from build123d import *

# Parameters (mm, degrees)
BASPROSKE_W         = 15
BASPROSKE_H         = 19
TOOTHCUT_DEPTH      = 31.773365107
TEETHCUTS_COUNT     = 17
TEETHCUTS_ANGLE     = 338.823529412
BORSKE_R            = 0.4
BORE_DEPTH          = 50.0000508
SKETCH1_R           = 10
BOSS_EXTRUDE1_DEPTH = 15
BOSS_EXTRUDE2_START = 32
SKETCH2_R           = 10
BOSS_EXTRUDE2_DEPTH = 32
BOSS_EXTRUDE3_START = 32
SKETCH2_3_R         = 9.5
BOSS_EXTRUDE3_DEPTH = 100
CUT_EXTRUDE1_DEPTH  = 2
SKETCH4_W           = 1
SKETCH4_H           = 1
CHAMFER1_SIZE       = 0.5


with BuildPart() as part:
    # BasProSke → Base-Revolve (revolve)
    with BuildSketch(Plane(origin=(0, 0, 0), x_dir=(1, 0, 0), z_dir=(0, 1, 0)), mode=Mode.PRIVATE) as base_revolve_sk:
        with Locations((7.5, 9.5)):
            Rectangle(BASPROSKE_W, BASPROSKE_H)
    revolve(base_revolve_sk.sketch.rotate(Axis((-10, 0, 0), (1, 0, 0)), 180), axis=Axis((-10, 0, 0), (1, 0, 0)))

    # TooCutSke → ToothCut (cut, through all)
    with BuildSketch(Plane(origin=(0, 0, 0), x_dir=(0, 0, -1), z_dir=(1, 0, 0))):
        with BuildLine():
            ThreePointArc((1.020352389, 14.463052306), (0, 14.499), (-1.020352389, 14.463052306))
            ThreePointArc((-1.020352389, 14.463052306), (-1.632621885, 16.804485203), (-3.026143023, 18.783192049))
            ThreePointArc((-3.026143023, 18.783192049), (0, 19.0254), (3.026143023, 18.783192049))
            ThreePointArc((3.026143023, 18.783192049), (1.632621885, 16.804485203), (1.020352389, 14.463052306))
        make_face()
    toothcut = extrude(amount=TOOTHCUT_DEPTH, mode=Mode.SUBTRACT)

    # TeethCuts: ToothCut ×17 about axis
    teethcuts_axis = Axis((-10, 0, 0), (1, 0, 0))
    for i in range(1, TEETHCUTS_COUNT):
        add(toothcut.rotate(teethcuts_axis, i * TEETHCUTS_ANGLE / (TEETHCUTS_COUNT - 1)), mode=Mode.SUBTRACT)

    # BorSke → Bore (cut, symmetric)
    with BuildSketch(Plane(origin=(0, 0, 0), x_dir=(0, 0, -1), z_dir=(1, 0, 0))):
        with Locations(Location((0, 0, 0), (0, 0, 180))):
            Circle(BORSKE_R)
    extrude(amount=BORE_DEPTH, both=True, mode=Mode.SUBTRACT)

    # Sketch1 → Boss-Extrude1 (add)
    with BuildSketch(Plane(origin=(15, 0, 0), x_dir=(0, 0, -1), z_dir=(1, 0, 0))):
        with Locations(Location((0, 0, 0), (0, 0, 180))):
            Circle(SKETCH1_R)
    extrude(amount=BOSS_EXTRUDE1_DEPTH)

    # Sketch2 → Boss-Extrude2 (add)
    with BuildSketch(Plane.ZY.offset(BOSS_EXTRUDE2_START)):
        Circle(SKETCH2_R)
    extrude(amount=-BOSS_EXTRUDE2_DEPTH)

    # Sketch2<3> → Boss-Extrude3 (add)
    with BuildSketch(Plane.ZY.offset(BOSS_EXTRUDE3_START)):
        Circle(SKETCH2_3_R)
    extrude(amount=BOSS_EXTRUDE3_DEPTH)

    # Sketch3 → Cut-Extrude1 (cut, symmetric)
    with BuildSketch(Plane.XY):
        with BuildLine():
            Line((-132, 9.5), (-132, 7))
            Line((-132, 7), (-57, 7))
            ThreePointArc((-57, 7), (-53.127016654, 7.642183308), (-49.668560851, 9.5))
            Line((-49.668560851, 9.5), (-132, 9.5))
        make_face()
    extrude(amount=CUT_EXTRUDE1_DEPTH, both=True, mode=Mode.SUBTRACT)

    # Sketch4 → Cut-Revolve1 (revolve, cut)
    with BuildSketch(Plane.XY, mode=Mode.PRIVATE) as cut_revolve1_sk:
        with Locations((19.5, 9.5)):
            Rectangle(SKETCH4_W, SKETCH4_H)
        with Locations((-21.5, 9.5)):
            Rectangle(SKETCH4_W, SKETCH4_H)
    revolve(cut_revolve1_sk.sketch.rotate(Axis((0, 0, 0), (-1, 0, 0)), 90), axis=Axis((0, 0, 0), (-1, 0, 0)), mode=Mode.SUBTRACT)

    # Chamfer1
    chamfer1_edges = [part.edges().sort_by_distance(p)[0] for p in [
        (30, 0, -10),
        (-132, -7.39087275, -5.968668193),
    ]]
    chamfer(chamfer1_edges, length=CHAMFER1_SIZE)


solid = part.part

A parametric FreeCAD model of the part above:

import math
import FreeCAD as App
import Part
import Sketcher

V = App.Vector
Q = App.Units.Quantity


def edges_at(feature, points):
    """Names of the edges that pass closest to the given points."""
    edges = feature.Shape.Edges
    near = lambda p: min(range(len(edges)), key=lambda i: edges[i].distToShape(Part.Vertex(*p))[0])
    return sorted({f"Edge{near(p) + 1}" for p in points})

doc = App.newDocument("Part")
params = doc.addObject("Spreadsheet::Sheet", "Params")
for row, (alias, value) in enumerate([
    ("sketch1_width", "15 mm"),
    ("sketch1_height", "19 mm"),
    ("revolution_angle", "360 deg"),
    ("sketch2_radius", "6.8 mm"),
    ("sketch3_diameter", "0.8 mm"),
    ("pocket2_length", "100.000102 mm"),
    ("sketch4_diameter", "20 mm"),
    ("pad1_length", "15 mm"),
    ("sketch5_diameter", "20 mm"),
    ("pad2_length", "32 mm"),
    ("sketch6_diameter", "19 mm"),
    ("pad3_length", "100 mm"),
    ("sketch7_radius", "12 mm"),
    ("sketch7_width", "75 mm"),
    ("sketch7_height", "2.5 mm"),
    ("pocket3_length", "4 mm"),
    ("sketch8_width", "1 mm"),
    ("groove_angle", "360 deg"),
    ("chamfer_size", "0.5 mm"),
], start=1):
    params.set(f"A{row}", alias)
    params.set(f"B{row}", "=" + value)
    params.setAlias(f"B{row}", alias)

body = doc.addObject("PartDesign::Body", "Body")

# Sketch on XZ plane
sketch1 = body.newObject("Sketcher::SketchObject", "Sketch")
sketch1.AttachmentSupport = (doc.getObject("XZ_Plane"), [""])
sketch1.MapMode = "FlatFace"
sketch1.addGeometry([
    Part.LineSegment(V(0, -19, 0), V(0, 0, 0)),
    Part.LineSegment(V(0, 0, 0), V(15, 0, 0)),
    Part.LineSegment(V(15, 0, 0), V(15, -19, 0)),
    Part.LineSegment(V(15, -19, 0), V(0, -19, 0)),
], False)
sketch1.addConstraint([
    Sketcher.Constraint("Coincident", 0, 2, 1, 1),
    Sketcher.Constraint("Coincident", 1, 2, 2, 1),
    Sketcher.Constraint("Coincident", 2, 2, 3, 1),
    Sketcher.Constraint("Coincident", 3, 2, 0, 1),
    Sketcher.Constraint("Vertical", 0),
    Sketcher.Constraint("Horizontal", 1),
    Sketcher.Constraint("Vertical", 2),
    Sketcher.Constraint("Horizontal", 3),
    Sketcher.Constraint("Coincident", 0, 2, -1, 1),
    Sketcher.Constraint("DistanceX", 1, 1, 1, 2, Q("15 mm")),
    Sketcher.Constraint("DistanceY", 0, 1, 0, 2, Q("19 mm")),
])
sketch1.setExpression("Constraints[9]", "Params.sketch1_width")
sketch1.setExpression("Constraints[10]", "Params.sketch1_height")
revolution = body.newObject("PartDesign::Revolution", "Revolution")
revolution.Profile = sketch1
revolution.ReferenceAxis = (sketch1, ["H_Axis"])
revolution.setExpression("Angle", "Params.revolution_angle")

# Sketch on YZ plane
sketch2 = body.newObject("Sketcher::SketchObject", "Sketch001")
sketch2.AttachmentSupport = (doc.getObject("YZ_Plane"), [""])
sketch2.MapMode = "FlatFace"
sketch2.addGeometry([
    Part.ArcOfCircle(Part.Circle(V(0, 0, 0), V(0, 0, 1), 14.5), math.radians(-4.04), math.radians(4.04)),
    Part.ArcOfCircle(Part.Circle(V(13.9, -7.8, 0), V(0, 0, 1), 6.8), math.radians(45), math.radians(86)),
    Part.ArcOfCircle(Part.Circle(V(0, 0, 0), V(0, 0, 1), 19), math.radians(-9.15), math.radians(9.15)),
    Part.ArcOfCircle(Part.Circle(V(13.9, 7.8, 0), V(0, 0, 1), 6.8), math.radians(-86), math.radians(-45)),
], False)
sketch2.addConstraint([
    Sketcher.Constraint("Coincident", 0, 1, 1, 2),
    Sketcher.Constraint("Coincident", 1, 1, 2, 1),
    Sketcher.Constraint("Coincident", 2, 2, 3, 2),
    Sketcher.Constraint("Coincident", 3, 1, 0, 2),
    Sketcher.Constraint("Coincident", 0, 3, -1, 1),
    Sketcher.Constraint("Coincident", 2, 3, -1, 1),
    Sketcher.Constraint("Equal", 1, 3),
    Sketcher.Constraint("Symmetric", 1, 3, 3, 3, -1),
    Sketcher.Constraint("Radius", 1, Q("6.8 mm")),
    Sketcher.Constraint("Radius", 0, Q("14.499 mm")),
    Sketcher.Constraint("Radius", 2, Q("19.0254 mm")),
    Sketcher.Constraint("DistanceY", 0, 1, 3, 3, Q("8.820629 mm")),
    Sketcher.Constraint("DistanceX", 0, 1, 1, 1, Q("4.32014 mm")),
])
sketch2.setExpression("Constraints[8]", "Params.sketch2_radius")
pocket1 = body.newObject("PartDesign::Pocket", "Pocket")
pocket1.Profile = sketch2
pocket1.Type = "ThroughAll"
pocket1.Reversed = True
doc.recompute()

polarpattern = body.newObject("PartDesign::PolarPattern", "PolarPattern")
polarpattern.Originals = [pocket1]
polarpattern.Axis = (doc.getObject("X_Axis"), [""])
polarpattern.Angle = 360
polarpattern.Occurrences = 17
body.Tip = polarpattern

# Sketch on YZ plane
sketch3 = body.newObject("Sketcher::SketchObject", "Sketch002")
sketch3.AttachmentSupport = (doc.getObject("YZ_Plane"), [""])
sketch3.MapMode = "FlatFace"
sketch3.addGeometry(Part.Circle(V(0, 0, 0), V(0, 0, 1), 0.4), False)
sketch3.addConstraint([
    Sketcher.Constraint("Coincident", 0, 3, -1, 1),
    Sketcher.Constraint("Diameter", 0, Q("0.8 mm")),
])
sketch3.setExpression("Constraints[1]", "Params.sketch3_diameter")
pocket2 = body.newObject("PartDesign::Pocket", "Pocket001")
pocket2.Profile = sketch3
pocket2.setExpression("Length", "Params.pocket2_length")
pocket2.Midplane = True

# Sketch on YZ plane
sketch4 = body.newObject("Sketcher::SketchObject", "Sketch003")
sketch4.AttachmentSupport = (doc.getObject("YZ_Plane"), [""])
sketch4.MapMode = "FlatFace"
sketch4.AttachmentOffset = App.Placement(V(0, 0, 15), App.Rotation())
sketch4.addGeometry(Part.Circle(V(0, 0, 0), V(0, 0, 1), 10), False)
sketch4.addConstraint([
    Sketcher.Constraint("Coincident", 0, 3, -1, 1),
    Sketcher.Constraint("Diameter", 0, Q("20 mm")),
])
sketch4.setExpression("Constraints[1]", "Params.sketch4_diameter")
pad1 = body.newObject("PartDesign::Pad", "Pad")
pad1.Profile = sketch4
pad1.setExpression("Length", "Params.pad1_length")

# Sketch on YZ plane
sketch5 = body.newObject("Sketcher::SketchObject", "Sketch004")
sketch5.AttachmentSupport = (doc.getObject("YZ_Plane"), [""])
sketch5.MapMode = "FlatFace"
sketch5.AttachmentOffset = App.Placement(V(0, 0, -32), App.Rotation())
sketch5.addGeometry(Part.Circle(V(0, 0, 0), V(0, 0, 1), 10), False)
sketch5.addConstraint([
    Sketcher.Constraint("Coincident", 0, 3, -1, 1),
    Sketcher.Constraint("Diameter", 0, Q("20 mm")),
])
sketch5.setExpression("Constraints[1]", "Params.sketch5_diameter")
pad2 = body.newObject("PartDesign::Pad", "Pad001")
pad2.Profile = sketch5
pad2.setExpression("Length", "Params.pad2_length")

# Sketch on YZ plane
sketch6 = body.newObject("Sketcher::SketchObject", "Sketch005")
sketch6.AttachmentSupport = (doc.getObject("YZ_Plane"), [""])
sketch6.MapMode = "FlatFace"
sketch6.AttachmentOffset = App.Placement(V(0, 0, -32), App.Rotation())
sketch6.addGeometry(Part.Circle(V(0, 0, 0), V(0, 0, 1), 10), False)
sketch6.addConstraint([
    Sketcher.Constraint("Coincident", 0, 3, -1, 1),
    Sketcher.Constraint("Diameter", 0, Q("19 mm")),
])
sketch6.setExpression("Constraints[1]", "Params.sketch6_diameter")
pad3 = body.newObject("PartDesign::Pad", "Pad002")
pad3.Profile = sketch6
pad3.setExpression("Length", "Params.pad3_length")
pad3.Reversed = True

# Sketch on XY plane
sketch7 = body.newObject("Sketcher::SketchObject", "Sketch006")
sketch7.AttachmentSupport = (doc.getObject("XY_Plane"), [""])
sketch7.MapMode = "FlatFace"
sketch7.addGeometry([
    Part.LineSegment(V(-132, 9.5, 0), V(-132, 7, 0)),
    Part.LineSegment(V(-132, 7, 0), V(-57, 7, 0)),
    Part.ArcOfCircle(Part.Circle(V(-57, 19, 0), V(0, 0, 1), 12), math.radians(-90), math.radians(-52)),
    Part.LineSegment(V(-49.7, 9.5, 0), V(-132, 9.5, 0)),
], False)
sketch7.addConstraint([
    Sketcher.Constraint("Coincident", 0, 2, 1, 1),
    Sketcher.Constraint("Tangent", 1, 2, 2, 1),
    Sketcher.Constraint("Coincident", 2, 2, 3, 1),
    Sketcher.Constraint("Coincident", 3, 2, 0, 1),
    Sketcher.Constraint("Vertical", 0),
    Sketcher.Constraint("Horizontal", 1),
    Sketcher.Constraint("Horizontal", 3),
    Sketcher.Constraint("Radius", 2, Q("12 mm")),
    Sketcher.Constraint("DistanceX", 1, 1, 1, 2, Q("75 mm")),
    Sketcher.Constraint("DistanceY", 0, 2, 0, 1, Q("2.5 mm")),
    Sketcher.Constraint("DistanceX", 2, 3, -1, 1, Q("57 mm")),
    Sketcher.Constraint("DistanceY", -1, 1, 2, 3, Q("19 mm")),
])
sketch7.setExpression("Constraints[7]", "Params.sketch7_radius")
sketch7.setExpression("Constraints[8]", "Params.sketch7_width")
sketch7.setExpression("Constraints[9]", "Params.sketch7_height")
pocket3 = body.newObject("PartDesign::Pocket", "Pocket002")
pocket3.Profile = sketch7
pocket3.setExpression("Length", "Params.pocket3_length")
pocket3.Midplane = True

# Sketch on XY plane
sketch8 = body.newObject("Sketcher::SketchObject", "Sketch007")
sketch8.AttachmentSupport = (doc.getObject("XY_Plane"), [""])
sketch8.MapMode = "FlatFace"
sketch8.addGeometry([
    Part.LineSegment(V(19, 10, 0), V(19, 9, 0)),  # 0
    Part.LineSegment(V(19, 9, 0), V(20, 9, 0)),  # 1
    Part.LineSegment(V(20, 9, 0), V(20, 10, 0)),  # 2
    Part.LineSegment(V(20, 10, 0), V(19, 10, 0)),  # 3
    Part.LineSegment(V(-22, 10, 0), V(-22, 9, 0)),  # 4
    Part.LineSegment(V(-22, 9, 0), V(-21, 9, 0)),  # 5
    Part.LineSegment(V(-21, 9, 0), V(-21, 10, 0)),  # 6
    Part.LineSegment(V(-21, 10, 0), V(-22, 10, 0)),  # 7
], False)
sketch8.addConstraint([
    Sketcher.Constraint("Coincident", 0, 2, 1, 1),
    Sketcher.Constraint("Coincident", 1, 2, 2, 1),
    Sketcher.Constraint("Coincident", 2, 2, 3, 1),
    Sketcher.Constraint("Coincident", 3, 2, 0, 1),
    Sketcher.Constraint("Coincident", 4, 2, 5, 1),
    Sketcher.Constraint("Coincident", 5, 2, 6, 1),
    Sketcher.Constraint("Coincident", 6, 2, 7, 1),
    Sketcher.Constraint("Coincident", 7, 2, 4, 1),
    Sketcher.Constraint("Vertical", 0),
    Sketcher.Constraint("Horizontal", 1),
    Sketcher.Constraint("Vertical", 2),
    Sketcher.Constraint("Horizontal", 3),
    Sketcher.Constraint("Vertical", 4),
    Sketcher.Constraint("Horizontal", 5),
    Sketcher.Constraint("Vertical", 6),
    Sketcher.Constraint("Horizontal", 7),
    Sketcher.Constraint("Horizontal", 1, 2, 4, 2),
    Sketcher.Constraint("Horizontal", 3, 2, 6, 2),
    Sketcher.Constraint("Equal", 3, 5),
    Sketcher.Constraint("Equal", 7, 0),
    Sketcher.Constraint("DistanceX", 1, 1, 1, 2, Q("1 mm")),
    Sketcher.Constraint("DistanceX", -1, 1, 0, 2, Q("19 mm")),
    Sketcher.Constraint("DistanceY", -1, 1, 0, 2, Q("9 mm")),
    Sketcher.Constraint("DistanceX", 4, 2, -1, 1, Q("22 mm")),
])
sketch8.setExpression("Constraints[20]", "Params.sketch8_width")
groove = body.newObject("PartDesign::Groove", "Groove")
groove.Profile = sketch8
groove.ReferenceAxis = (sketch8, ["H_Axis"])
groove.setExpression("Angle", "Params.groove_angle")
doc.recompute()

chamfer = body.newObject("PartDesign::Chamfer", "Chamfer")
chamfer.Base = (groove, edges_at(groove, [(30, 0, -10), (-132, -7.391, -5.969)]))
chamfer.setExpression("Size", "Params.chamfer_size")

doc.recompute()
